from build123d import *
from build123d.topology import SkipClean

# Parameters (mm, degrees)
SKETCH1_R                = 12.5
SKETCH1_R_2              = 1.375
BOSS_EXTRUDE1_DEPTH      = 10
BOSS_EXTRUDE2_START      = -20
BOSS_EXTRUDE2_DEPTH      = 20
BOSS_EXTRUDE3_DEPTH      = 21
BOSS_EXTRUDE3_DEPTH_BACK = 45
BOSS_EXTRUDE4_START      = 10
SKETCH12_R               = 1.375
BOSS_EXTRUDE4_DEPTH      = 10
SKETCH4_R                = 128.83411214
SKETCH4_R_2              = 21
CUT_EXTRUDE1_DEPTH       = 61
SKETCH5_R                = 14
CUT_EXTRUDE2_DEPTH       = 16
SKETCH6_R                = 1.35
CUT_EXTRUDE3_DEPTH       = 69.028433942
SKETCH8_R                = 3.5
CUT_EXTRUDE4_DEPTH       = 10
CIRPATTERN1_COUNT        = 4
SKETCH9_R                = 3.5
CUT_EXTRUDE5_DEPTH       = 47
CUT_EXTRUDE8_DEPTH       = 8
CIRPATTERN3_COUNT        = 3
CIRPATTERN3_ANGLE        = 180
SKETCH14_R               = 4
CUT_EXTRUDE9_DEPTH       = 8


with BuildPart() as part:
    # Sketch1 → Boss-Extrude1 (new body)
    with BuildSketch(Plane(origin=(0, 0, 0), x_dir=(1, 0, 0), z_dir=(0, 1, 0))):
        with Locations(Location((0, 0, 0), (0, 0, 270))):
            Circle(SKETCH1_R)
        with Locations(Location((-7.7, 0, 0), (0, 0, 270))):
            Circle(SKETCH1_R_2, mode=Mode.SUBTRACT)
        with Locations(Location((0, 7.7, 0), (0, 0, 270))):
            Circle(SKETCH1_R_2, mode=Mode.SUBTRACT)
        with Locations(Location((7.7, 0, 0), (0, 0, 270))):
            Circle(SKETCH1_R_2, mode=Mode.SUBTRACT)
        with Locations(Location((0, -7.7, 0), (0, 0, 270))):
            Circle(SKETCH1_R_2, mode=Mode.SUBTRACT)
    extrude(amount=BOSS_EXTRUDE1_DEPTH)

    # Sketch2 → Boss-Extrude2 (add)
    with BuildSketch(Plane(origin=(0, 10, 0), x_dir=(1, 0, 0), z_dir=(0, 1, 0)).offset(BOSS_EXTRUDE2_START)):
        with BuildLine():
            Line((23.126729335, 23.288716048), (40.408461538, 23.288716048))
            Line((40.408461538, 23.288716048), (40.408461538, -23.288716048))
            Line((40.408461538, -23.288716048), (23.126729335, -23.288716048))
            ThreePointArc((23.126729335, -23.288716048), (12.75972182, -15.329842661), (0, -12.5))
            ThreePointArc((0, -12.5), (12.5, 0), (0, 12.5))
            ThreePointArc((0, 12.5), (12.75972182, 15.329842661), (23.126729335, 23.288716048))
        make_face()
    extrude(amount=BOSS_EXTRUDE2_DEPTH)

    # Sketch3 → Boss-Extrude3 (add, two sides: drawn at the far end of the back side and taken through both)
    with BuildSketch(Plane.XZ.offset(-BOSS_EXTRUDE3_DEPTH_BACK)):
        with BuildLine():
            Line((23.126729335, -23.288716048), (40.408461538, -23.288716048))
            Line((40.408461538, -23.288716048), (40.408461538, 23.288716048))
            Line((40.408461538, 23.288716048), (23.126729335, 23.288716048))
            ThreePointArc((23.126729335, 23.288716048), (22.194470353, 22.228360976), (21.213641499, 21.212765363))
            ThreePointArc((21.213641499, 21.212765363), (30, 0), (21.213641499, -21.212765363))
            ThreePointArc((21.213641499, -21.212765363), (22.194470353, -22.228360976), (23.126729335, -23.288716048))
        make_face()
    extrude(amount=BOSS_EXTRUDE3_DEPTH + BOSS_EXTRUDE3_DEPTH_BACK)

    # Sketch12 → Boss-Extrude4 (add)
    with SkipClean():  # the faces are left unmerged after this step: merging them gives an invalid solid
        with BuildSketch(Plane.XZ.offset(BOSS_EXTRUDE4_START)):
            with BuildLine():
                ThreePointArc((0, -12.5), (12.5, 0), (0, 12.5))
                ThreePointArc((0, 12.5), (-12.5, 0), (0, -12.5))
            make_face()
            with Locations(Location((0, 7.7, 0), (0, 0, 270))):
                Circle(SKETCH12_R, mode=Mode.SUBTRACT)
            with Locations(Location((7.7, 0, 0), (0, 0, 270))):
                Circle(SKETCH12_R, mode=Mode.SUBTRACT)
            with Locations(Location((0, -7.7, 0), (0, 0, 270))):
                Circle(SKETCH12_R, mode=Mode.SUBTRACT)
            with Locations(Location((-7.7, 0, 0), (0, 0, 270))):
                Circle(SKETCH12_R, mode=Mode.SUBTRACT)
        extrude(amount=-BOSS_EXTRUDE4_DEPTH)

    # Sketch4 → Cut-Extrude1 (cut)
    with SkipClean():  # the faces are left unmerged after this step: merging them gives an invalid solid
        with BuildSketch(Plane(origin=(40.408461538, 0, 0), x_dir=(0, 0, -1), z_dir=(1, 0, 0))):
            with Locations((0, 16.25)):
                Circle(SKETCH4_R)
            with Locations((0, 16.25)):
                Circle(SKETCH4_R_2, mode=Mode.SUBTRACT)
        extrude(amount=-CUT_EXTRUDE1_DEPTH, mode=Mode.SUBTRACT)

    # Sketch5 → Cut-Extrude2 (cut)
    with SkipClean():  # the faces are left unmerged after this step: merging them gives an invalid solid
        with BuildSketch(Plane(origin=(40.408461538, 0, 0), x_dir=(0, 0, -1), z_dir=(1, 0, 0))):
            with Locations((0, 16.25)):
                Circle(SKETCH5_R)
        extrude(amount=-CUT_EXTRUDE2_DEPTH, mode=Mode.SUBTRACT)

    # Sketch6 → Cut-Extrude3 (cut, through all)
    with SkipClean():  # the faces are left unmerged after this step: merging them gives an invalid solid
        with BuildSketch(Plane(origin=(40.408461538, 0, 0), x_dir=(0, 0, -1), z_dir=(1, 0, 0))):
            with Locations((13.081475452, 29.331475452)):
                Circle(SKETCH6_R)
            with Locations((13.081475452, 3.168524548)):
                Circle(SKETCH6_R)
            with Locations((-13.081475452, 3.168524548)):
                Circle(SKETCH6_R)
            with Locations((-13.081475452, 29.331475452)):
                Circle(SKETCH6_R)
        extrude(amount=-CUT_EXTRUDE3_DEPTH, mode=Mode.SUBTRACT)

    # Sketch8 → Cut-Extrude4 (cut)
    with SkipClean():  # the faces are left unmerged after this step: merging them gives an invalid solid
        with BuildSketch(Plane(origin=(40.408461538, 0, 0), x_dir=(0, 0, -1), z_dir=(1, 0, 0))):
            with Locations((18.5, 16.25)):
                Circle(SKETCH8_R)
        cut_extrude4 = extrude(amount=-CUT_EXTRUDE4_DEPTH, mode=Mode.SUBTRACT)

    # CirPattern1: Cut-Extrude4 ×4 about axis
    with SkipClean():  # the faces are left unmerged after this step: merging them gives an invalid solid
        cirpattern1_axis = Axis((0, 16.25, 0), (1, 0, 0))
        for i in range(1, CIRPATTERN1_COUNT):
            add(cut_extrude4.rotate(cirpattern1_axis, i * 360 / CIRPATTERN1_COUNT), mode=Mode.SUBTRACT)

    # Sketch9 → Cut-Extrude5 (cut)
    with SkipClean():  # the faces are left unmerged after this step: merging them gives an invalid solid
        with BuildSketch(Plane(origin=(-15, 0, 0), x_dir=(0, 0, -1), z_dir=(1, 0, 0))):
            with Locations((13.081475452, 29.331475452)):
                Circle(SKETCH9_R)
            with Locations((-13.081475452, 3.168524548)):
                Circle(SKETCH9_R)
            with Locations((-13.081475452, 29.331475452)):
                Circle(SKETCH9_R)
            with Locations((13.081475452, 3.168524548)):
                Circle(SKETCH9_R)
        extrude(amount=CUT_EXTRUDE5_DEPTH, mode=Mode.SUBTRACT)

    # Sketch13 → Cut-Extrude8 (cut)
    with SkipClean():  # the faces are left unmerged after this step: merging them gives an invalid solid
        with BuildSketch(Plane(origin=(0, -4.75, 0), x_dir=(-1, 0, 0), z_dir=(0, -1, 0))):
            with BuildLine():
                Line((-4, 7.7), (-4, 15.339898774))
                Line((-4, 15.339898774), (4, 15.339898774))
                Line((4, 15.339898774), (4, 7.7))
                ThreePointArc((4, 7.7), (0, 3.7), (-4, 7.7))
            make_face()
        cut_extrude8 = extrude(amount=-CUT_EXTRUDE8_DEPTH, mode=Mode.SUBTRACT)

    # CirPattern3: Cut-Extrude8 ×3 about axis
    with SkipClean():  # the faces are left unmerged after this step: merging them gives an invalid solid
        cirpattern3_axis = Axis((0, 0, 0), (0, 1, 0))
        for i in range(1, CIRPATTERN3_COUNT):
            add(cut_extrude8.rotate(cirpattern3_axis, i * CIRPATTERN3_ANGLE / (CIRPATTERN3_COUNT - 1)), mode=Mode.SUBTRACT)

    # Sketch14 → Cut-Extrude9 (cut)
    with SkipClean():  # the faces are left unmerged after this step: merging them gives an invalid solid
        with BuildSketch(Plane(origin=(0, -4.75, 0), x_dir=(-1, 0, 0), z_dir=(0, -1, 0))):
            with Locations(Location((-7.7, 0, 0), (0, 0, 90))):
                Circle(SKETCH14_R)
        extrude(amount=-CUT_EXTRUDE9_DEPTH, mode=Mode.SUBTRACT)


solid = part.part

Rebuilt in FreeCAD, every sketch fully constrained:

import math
import FreeCAD as App
import Part
import Sketcher
from FreeCAD import Vector
Q = App.Units.Quantity

doc = App.newDocument("Part")
body = doc.addObject("PartDesign::Body", "Body")

sketch1 = body.newObject("Sketcher::SketchObject", "Sketch")
sketch1.AttachmentSupport = (doc.getObject("XZ_Plane"), [""])
sketch1.MapMode = "FlatFace"
sketch1.addGeometry([
    Part.Circle(Vector(0, 0, 0), Vector(0, 0, 1), 12.5),
    Part.Circle(Vector(-7.7, 0, 0), Vector(0, 0, 1), 1.4),
    Part.Circle(Vector(0, -7.7, 0), Vector(0, 0, 1), 1.4),
    Part.Circle(Vector(7.7, 0, 0), Vector(0, 0, 1), 1.4),
    Part.Circle(Vector(0, 7.7, 0), Vector(0, 0, 1), 1.4),
], False)
sketch1.addConstraint([
    Sketcher.Constraint("Coincident", 0, 3, -1, 1),
    Sketcher.Constraint("Equal", 1, 2),
    Sketcher.Constraint("Equal", 2, 3),
    Sketcher.Constraint("Equal", 3, 4),
    Sketcher.Constraint("Symmetric", 1, 3, 3, 3, -1, 1),
    Sketcher.Constraint("Symmetric", 2, 3, 4, 3, -1, 1),
    Sketcher.Constraint("PointOnObject", 1, 3, -1),
    Sketcher.Constraint("PointOnObject", 2, 3, -2),
    Sketcher.Constraint("Diameter", 0, Q("25 mm")),
    Sketcher.Constraint("Diameter", 1, Q("2.75 mm")),
    Sketcher.Constraint("DistanceX", 1, 3, -1, 1, Q("7.7 mm")),
    Sketcher.Constraint("DistanceY", 2, 3, -1, 1, Q("7.7 mm")),
])
pad1 = body.newObject("PartDesign::Pad", "Pad")
pad1.Profile = sketch1
pad1.Length = 10
pad1.Reversed = True

sketch2 = body.newObject("Sketcher::SketchObject", "Sketch001")
sketch2.AttachmentSupport = (doc.getObject("XZ_Plane"), [""])
sketch2.MapMode = "FlatFace"
sketch2.AttachmentOffset = App.Placement(Vector(0, 0, 10), App.Rotation())
sketch2.addGeometry([
    Part.LineSegment(Vector(40, -23, 0), Vector(23, -23, 0)),
    Part.ArcOfCircle(Part.Circle(Vector(0, -43, 0), Vector(0, 0, 1), 30), math.radians(40), math.radians(90)),
    Part.ArcOfCircle(Part.Circle(Vector(0, 0, 0), Vector(0, 0, 1), 12), math.radians(-90), math.radians(90)),
    Part.ArcOfCircle(Part.Circle(Vector(0, 43, 0), Vector(0, 0, 1), 30), math.radians(-90), math.radians(-40)),
    Part.LineSegment(Vector(23, 23, 0), Vector(40, 23, 0)),
    Part.LineSegment(Vector(40, 23, 0), Vector(40, -23, 0)),
], False)
sketch2.addConstraint([
    Sketcher.Constraint("Coincident", 0, 2, 1, 1),
    Sketcher.Constraint("Tangent", 1, 2, 2, 1),
    Sketcher.Constraint("Tangent", 2, 2, 3, 1),
    Sketcher.Constraint("Coincident", 3, 2, 4, 1),
    Sketcher.Constraint("Coincident", 4, 2, 5, 1),
    Sketcher.Constraint("Coincident", 5, 2, 0, 1),
    Sketcher.Constraint("Horizontal", 0),
    Sketcher.Constraint("Horizontal", 4),
    Sketcher.Constraint("Vertical", 5),
    Sketcher.Constraint("Coincident", 2, 3, -1, 1),
    Sketcher.Constraint("Equal", 1, 3),
    Sketcher.Constraint("Symmetric", 0, 2, 3, 2, -1),
    Sketcher.Constraint("PointOnObject", 1, 3, -2),
    Sketcher.Constraint("Radius", 2, Q("12.5 mm")),
    Sketcher.Constraint("Radius", 1, Q("30.181627 mm")),
    Sketcher.Constraint("DistanceX", 0, 2, 0, 1, Q("17.281732 mm")),
    Sketcher.Constraint("DistanceY", 5, 2, 5, 1, Q("46.577432 mm")),
])
pad2 = body.newObject("PartDesign::Pad", "Pad001")
pad2.Profile = sketch2
pad2.Length = 20
pad2.Reversed = True

sketch3 = body.newObject("Sketcher::SketchObject", "Sketch002")
sketch3.AttachmentSupport = (doc.getObject("XZ_Plane"), [""])
sketch3.MapMode = "FlatFace"
sketch3.addGeometry([
    Part.LineSegment(Vector(23.1, -23.3, 0), Vector(40.4, -23.3, 0)),
    Part.LineSegment(Vector(40.4, -23.3, 0), Vector(40.4, 23.3, 0)),
    Part.LineSegment(Vector(40.4, 23.3, 0), Vector(23.1, 23.3, 0)),
    Part.ArcOfCircle(Part.Circle(Vector(0, 42.7, 0), Vector(0, 0, 1), 30.2), math.radians(-45.34), math.radians(-39.98)),
    Part.ArcOfCircle(Part.Circle(Vector(0, 0, 0), Vector(0, 0, 1), 30), math.radians(-45), math.radians(45)),
    Part.ArcOfCircle(Part.Circle(Vector(0, -42.7, 0), Vector(0, 0, 1), 30.2), math.radians(39.98), math.radians(45.34)),
], False)
sketch3.addConstraint([
    Sketcher.Constraint("Coincident", 0, 2, 1, 1),
    Sketcher.Constraint("Coincident", 1, 2, 2, 1),
    Sketcher.Constraint("Coincident", 2, 2, 3, 2),
    Sketcher.Constraint("Coincident", 3, 1, 4, 2),
    Sketcher.Constraint("Coincident", 4, 1, 5, 2),
    Sketcher.Constraint("Coincident", 5, 1, 0, 1),
    Sketcher.Constraint("Horizontal", 0),
    Sketcher.Constraint("Vertical", 1),
    Sketcher.Constraint("Horizontal", 2),
    Sketcher.Constraint("Coincident", 4, 3, -1, 1),
    Sketcher.Constraint("Equal", 3, 5),
    Sketcher.Constraint("Symmetric", 3, 3, 5, 3, -1, 1),
    Sketcher.Constraint("Symmetric", 2, 2, 5, 1, -1),
    Sketcher.Constraint("Radius", 4, Q("30 mm")),
    Sketcher.Constraint("Radius", 3, Q("30.181627 mm")),
    Sketcher.Constraint("DistanceX", 0, 1, 0, 2, Q("17.281732 mm")),
    Sketcher.Constraint("DistanceY", 1, 1, 1, 2, Q("46.577432 mm")),
    Sketcher.Constraint("DistanceX", -1, 1, 0, 2, Q("40.408462 mm")),
])
pad3 = body.newObject("PartDesign::Pad", "Pad002")
pad3.Profile = sketch3
pad3.Type = "TwoLengths"
pad3.Length = 21
pad3.Length2 = 45

sketch4 = body.newObject("Sketcher::SketchObject", "Sketch003")
sketch4.AttachmentSupport = (doc.getObject("XZ_Plane"), [""])
sketch4.MapMode = "FlatFace"
sketch4.AttachmentOffset = App.Placement(Vector(0, 0, 10), App.Rotation())
sketch4.addGeometry([
    Part.Circle(Vector(0, 0, 0), Vector(0, 0, 1), 12.5),
    Part.Circle(Vector(0, -7.7, 0), Vector(0, 0, 1), 1.4),
    Part.Circle(Vector(-7.7, 0, 0), Vector(0, 0, 1), 1.4),
    Part.Circle(Vector(7.7, 0, 0), Vector(0, 0, 1), 1.4),
    Part.Circle(Vector(0, 7.7, 0), Vector(0, 0, 1), 1.4),
], False)
sketch4.addConstraint([
    Sketcher.Constraint("Coincident", 0, 3, -1, 1),
    Sketcher.Constraint("Equal", 1, 2),
    Sketcher.Constraint("Equal", 2, 3),
    Sketcher.Constraint("Equal", 3, 4),
    Sketcher.Constraint("Symmetric", 2, 3, 3, 3, -1, 1),
    Sketcher.Constraint("Symmetric", 1, 3, 4, 3, -1, 1),
    Sketcher.Constraint("PointOnObject", 1, 3, -2),
    Sketcher.Constraint("PointOnObject", 2, 3, -1),
    Sketcher.Constraint("Diameter", 0, Q("25 mm")),
    Sketcher.Constraint("Diameter", 1, Q("2.75 mm")),
    Sketcher.Constraint("DistanceY", 1, 3, -1, 1, Q("7.7 mm")),
    Sketcher.Constraint("DistanceX", 2, 3, -1, 1, Q("7.7 mm")),
])
pad4 = body.newObject("PartDesign::Pad", "Pad003")
pad4.Profile = sketch4
pad4.Length = 10
pad4.Reversed = True

sketch5 = body.newObject("Sketcher::SketchObject", "Sketch004")
sketch5.AttachmentSupport = (doc.getObject("YZ_Plane"), [""])
sketch5.MapMode = "FlatFace"
sketch5.AttachmentOffset = App.Placement(Vector(0, 0, 40.408462), App.Rotation())
sketch5.addGeometry([
    Part.Circle(Vector(16, 0, 0), Vector(0, 0, 1), 129),
    Part.Circle(Vector(16, 0, 0), Vector(0, 0, 1), 21),
], False)
sketch5.addConstraint([
    Sketcher.Constraint("Coincident", 1, 3, 0, 3),
    Sketcher.Constraint("PointOnObject", 0, 3, -1),
    Sketcher.Constraint("Diameter", 1, Q("42 mm")),
    Sketcher.Constraint("DistanceX", -1, 1, 0, 3, Q("16.25 mm")),
    Sketcher.Constraint("Diameter", 0, Q("257.668224 mm")),
])
pocket1 = body.newObject("PartDesign::Pocket", "Pocket")
pocket1.Profile = sketch5
pocket1.Length = 61

sketch6 = body.newObject("Sketcher::SketchObject", "Sketch005")
sketch6.AttachmentSupport = (doc.getObject("YZ_Plane"), [""])
sketch6.MapMode = "FlatFace"
sketch6.AttachmentOffset = App.Placement(Vector(0, 0, 40.408462), App.Rotation())
sketch6.addGeometry(Part.Circle(Vector(16, 0, 0), Vector(0, 0, 1), 14), False)
sketch6.addConstraint([
    Sketcher.Constraint("PointOnObject", 0, 3, -1),
    Sketcher.Constraint("Diameter", 0, Q("28 mm")),
    Sketcher.Constraint("DistanceX", -1, 1, 0, 3, Q("16.25 mm")),
])
pocket2 = body.newObject("PartDesign::Pocket", "Pocket001")
pocket2.Profile = sketch6
pocket2.Length = 16

sketch7 = body.newObject("Sketcher::SketchObject", "Sketch006")
sketch7.AttachmentSupport = (doc.getObject("YZ_Plane"), [""])
sketch7.MapMode = "FlatFace"
sketch7.AttachmentOffset = App.Placement(Vector(0, 0, 40.408462), App.Rotation())
sketch7.addGeometry([
    Part.Circle(Vector(29.3, -13.1, 0), Vector(0, 0, 1), 1.4),
    Part.Circle(Vector(3.2, -13.1, 0), Vector(0, 0, 1), 1.4),
    Part.Circle(Vector(3.2, 13.1, 0), Vector(0, 0, 1), 1.4),
    Part.Circle(Vector(29.3, 13.1, 0), Vector(0, 0, 1), 1.4),
], False)
sketch7.addConstraint([
    Sketcher.Constraint("Equal", 0, 1),
    Sketcher.Constraint("Equal", 1, 2),
    Sketcher.Constraint("Equal", 2, 3),
    Sketcher.Constraint("Symmetric", 1, 3, 2, 3, -1),
    Sketcher.Constraint("Symmetric", 0, 3, 3, 3, -1),
    Sketcher.Constraint("Horizontal", 0, 3, 1, 3),
    Sketcher.Constraint("Diameter", 0, Q("2.7 mm")),
    Sketcher.Constraint("DistanceX", 1, 3, 0, 3, Q("26.162951 mm")),
    Sketcher.Constraint("DistanceY", 1, 3, 2, 3, Q("26.162951 mm")),
    Sketcher.Constraint("DistanceX", -1, 1, 0, 3, Q("29.331475 mm")),
])
pocket3 = body.newObject("PartDesign::Pocket", "Pocket002")
pocket3.Profile = sketch7
pocket3.Type = "ThroughAll"

sketch8 = body.newObject("Sketcher::SketchObject", "Sketch007")
sketch8.AttachmentSupport = (doc.getObject("YZ_Plane"), [""])
sketch8.MapMode = "FlatFace"
sketch8.AttachmentOffset = App.Placement(Vector(0, 0, 40.408462), App.Rotation())
sketch8.addGeometry(Part.Circle(Vector(16.2, -18.5, 0), Vector(0, 0, 1), 3.5), False)
sketch8.addConstraint([
    Sketcher.Constraint("Diameter", 0, Q("7 mm")),
    Sketcher.Constraint("DistanceY", 0, 3, -1, 1, Q("18.5 mm")),
    Sketcher.Constraint("DistanceX", -1, 1, 0, 3, Q("16.25 mm")),
])
pocket4 = body.newObject("PartDesign::Pocket", "Pocket003")
pocket4.Profile = sketch8
pocket4.Length = 10
doc.recompute()

datumline = body.newObject("PartDesign::Line", "DatumLine")
datumline.Placement = App.Placement(Vector(0, 16.25, 0), App.Rotation(Vector(0, 0, 1), Vector(1, 0, 0)))
polarpattern = body.newObject("PartDesign::PolarPattern", "PolarPattern")
polarpattern.Originals = [pocket4]
polarpattern.Axis = (datumline, [""])
polarpattern.Angle = 360
polarpattern.Occurrences = 4
body.Tip = polarpattern

sketch9 = body.newObject("Sketcher::SketchObject", "Sketch008")
sketch9.AttachmentSupport = (doc.getObject("YZ_Plane"), [""])
sketch9.MapMode = "FlatFace"
sketch9.AttachmentOffset = App.Placement(Vector(0, 0, -15), App.Rotation())
sketch9.addGeometry([
    Part.Circle(Vector(29.3, -13.1, 0), Vector(0, 0, 1), 3.5),
    Part.Circle(Vector(3.2, 13.1, 0), Vector(0, 0, 1), 3.5),
    Part.Circle(Vector(29.3, 13.1, 0), Vector(0, 0, 1), 3.5),
    Part.Circle(Vector(3.2, -13.1, 0), Vector(0, 0, 1), 3.5),
], False)
sketch9.addConstraint([
    Sketcher.Constraint("Equal", 0, 1),
    Sketcher.Constraint("Equal", 1, 2),
    Sketcher.Constraint("Equal", 2, 3),
    Sketcher.Constraint("Symmetric", 0, 3, 2, 3, -1),
    Sketcher.Constraint("Symmetric", 1, 3, 3, 3, -1),
    Sketcher.Constraint("Horizontal", 1, 3, 2, 3),
    Sketcher.Constraint("Diameter", 0, Q("7 mm")),
    Sketcher.Constraint("DistanceX", 1, 3, 0, 3, Q("26.162951 mm")),
    Sketcher.Constraint("DistanceY", 0, 3, 1, 3, Q("26.162951 mm")),
    Sketcher.Constraint("DistanceX", -1, 1, 0, 3, Q("29.331475 mm")),
])
pocket5 = body.newObject("PartDesign::Pocket", "Pocket004")
pocket5.Profile = sketch9
pocket5.Length = 47
pocket5.Reversed = True

sketch10 = body.newObject("Sketcher::SketchObject", "Sketch009")
sketch10.AttachmentSupport = (doc.getObject("XZ_Plane"), [""])
sketch10.MapMode = "FlatFace"
sketch10.AttachmentOffset = App.Placement(Vector(0, 0, 4.75), App.Rotation())
sketch10.addGeometry([
    Part.LineSegment(Vector(4, -15.3, 0), Vector(4, -7.7, 0)),
    Part.ArcOfCircle(Part.Circle(Vector(0, -7.7, 0), Vector(0, 0, 1), 4), math.radians(0), math.radians(180)),
    Part.LineSegment(Vector(-4, -7.7, 0), Vector(-4, -15.3, 0)),
    Part.LineSegment(Vector(-4, -15.3, 0), Vector(4, -15.3, 0)),
], False)
sketch10.addConstraint([
    Sketcher.Constraint("Tangent", 0, 2, 1, 1),
    Sketcher.Constraint("Tangent", 1, 2, 2, 1),
    Sketcher.Constraint("Coincident", 2, 2, 3, 1),
    Sketcher.Constraint("Coincident", 3, 2, 0, 1),
    Sketcher.Constraint("Vertical", 0),
    Sketcher.Constraint("Vertical", 2),
    Sketcher.Constraint("Horizontal", 3),
    Sketcher.Constraint("PointOnObject", 1, 3, -2),
    Sketcher.Constraint("Radius", 1, Q("4 mm")),
    Sketcher.Constraint("DistanceY", 1, 3, -1, 1, Q("7.7 mm")),
    Sketcher.Constraint("DistanceY", 0, 1, 0, 2, Q("7.639899 mm")),
])
pocket6 = body.newObject("PartDesign::Pocket", "Pocket005")
pocket6.Profile = sketch10
pocket6.Length = 8
doc.recompute()

polarpattern2 = body.newObject("PartDesign::PolarPattern", "PolarPattern001")
polarpattern2.Originals = [pocket6]
polarpattern2.Axis = (doc.getObject("Y_Axis"), [""])
polarpattern2.Angle = 180
polarpattern2.Occurrences = 3
body.Tip = polarpattern2

sketch11 = body.newObject("Sketcher::SketchObject", "Sketch010")
sketch11.AttachmentSupport = (doc.getObject("XZ_Plane"), [""])
sketch11.MapMode = "FlatFace"
sketch11.AttachmentOffset = App.Placement(Vector(0, 0, 4.75), App.Rotation())
sketch11.addGeometry(Part.Circle(Vector(7.7, 0, 0), Vector(0, 0, 1), 4), False)
sketch11.addConstraint([
    Sketcher.Constraint("PointOnObject", 0, 3, -1),
    Sketcher.Constraint("Diameter", 0, Q("8 mm")),
    Sketcher.Constraint("DistanceX", -1, 1, 0, 3, Q("7.7 mm")),
])
pocket7 = body.newObject("PartDesign::Pocket", "Pocket006")
pocket7.Profile = sketch11
pocket7.Length = 8

doc.recompute()
